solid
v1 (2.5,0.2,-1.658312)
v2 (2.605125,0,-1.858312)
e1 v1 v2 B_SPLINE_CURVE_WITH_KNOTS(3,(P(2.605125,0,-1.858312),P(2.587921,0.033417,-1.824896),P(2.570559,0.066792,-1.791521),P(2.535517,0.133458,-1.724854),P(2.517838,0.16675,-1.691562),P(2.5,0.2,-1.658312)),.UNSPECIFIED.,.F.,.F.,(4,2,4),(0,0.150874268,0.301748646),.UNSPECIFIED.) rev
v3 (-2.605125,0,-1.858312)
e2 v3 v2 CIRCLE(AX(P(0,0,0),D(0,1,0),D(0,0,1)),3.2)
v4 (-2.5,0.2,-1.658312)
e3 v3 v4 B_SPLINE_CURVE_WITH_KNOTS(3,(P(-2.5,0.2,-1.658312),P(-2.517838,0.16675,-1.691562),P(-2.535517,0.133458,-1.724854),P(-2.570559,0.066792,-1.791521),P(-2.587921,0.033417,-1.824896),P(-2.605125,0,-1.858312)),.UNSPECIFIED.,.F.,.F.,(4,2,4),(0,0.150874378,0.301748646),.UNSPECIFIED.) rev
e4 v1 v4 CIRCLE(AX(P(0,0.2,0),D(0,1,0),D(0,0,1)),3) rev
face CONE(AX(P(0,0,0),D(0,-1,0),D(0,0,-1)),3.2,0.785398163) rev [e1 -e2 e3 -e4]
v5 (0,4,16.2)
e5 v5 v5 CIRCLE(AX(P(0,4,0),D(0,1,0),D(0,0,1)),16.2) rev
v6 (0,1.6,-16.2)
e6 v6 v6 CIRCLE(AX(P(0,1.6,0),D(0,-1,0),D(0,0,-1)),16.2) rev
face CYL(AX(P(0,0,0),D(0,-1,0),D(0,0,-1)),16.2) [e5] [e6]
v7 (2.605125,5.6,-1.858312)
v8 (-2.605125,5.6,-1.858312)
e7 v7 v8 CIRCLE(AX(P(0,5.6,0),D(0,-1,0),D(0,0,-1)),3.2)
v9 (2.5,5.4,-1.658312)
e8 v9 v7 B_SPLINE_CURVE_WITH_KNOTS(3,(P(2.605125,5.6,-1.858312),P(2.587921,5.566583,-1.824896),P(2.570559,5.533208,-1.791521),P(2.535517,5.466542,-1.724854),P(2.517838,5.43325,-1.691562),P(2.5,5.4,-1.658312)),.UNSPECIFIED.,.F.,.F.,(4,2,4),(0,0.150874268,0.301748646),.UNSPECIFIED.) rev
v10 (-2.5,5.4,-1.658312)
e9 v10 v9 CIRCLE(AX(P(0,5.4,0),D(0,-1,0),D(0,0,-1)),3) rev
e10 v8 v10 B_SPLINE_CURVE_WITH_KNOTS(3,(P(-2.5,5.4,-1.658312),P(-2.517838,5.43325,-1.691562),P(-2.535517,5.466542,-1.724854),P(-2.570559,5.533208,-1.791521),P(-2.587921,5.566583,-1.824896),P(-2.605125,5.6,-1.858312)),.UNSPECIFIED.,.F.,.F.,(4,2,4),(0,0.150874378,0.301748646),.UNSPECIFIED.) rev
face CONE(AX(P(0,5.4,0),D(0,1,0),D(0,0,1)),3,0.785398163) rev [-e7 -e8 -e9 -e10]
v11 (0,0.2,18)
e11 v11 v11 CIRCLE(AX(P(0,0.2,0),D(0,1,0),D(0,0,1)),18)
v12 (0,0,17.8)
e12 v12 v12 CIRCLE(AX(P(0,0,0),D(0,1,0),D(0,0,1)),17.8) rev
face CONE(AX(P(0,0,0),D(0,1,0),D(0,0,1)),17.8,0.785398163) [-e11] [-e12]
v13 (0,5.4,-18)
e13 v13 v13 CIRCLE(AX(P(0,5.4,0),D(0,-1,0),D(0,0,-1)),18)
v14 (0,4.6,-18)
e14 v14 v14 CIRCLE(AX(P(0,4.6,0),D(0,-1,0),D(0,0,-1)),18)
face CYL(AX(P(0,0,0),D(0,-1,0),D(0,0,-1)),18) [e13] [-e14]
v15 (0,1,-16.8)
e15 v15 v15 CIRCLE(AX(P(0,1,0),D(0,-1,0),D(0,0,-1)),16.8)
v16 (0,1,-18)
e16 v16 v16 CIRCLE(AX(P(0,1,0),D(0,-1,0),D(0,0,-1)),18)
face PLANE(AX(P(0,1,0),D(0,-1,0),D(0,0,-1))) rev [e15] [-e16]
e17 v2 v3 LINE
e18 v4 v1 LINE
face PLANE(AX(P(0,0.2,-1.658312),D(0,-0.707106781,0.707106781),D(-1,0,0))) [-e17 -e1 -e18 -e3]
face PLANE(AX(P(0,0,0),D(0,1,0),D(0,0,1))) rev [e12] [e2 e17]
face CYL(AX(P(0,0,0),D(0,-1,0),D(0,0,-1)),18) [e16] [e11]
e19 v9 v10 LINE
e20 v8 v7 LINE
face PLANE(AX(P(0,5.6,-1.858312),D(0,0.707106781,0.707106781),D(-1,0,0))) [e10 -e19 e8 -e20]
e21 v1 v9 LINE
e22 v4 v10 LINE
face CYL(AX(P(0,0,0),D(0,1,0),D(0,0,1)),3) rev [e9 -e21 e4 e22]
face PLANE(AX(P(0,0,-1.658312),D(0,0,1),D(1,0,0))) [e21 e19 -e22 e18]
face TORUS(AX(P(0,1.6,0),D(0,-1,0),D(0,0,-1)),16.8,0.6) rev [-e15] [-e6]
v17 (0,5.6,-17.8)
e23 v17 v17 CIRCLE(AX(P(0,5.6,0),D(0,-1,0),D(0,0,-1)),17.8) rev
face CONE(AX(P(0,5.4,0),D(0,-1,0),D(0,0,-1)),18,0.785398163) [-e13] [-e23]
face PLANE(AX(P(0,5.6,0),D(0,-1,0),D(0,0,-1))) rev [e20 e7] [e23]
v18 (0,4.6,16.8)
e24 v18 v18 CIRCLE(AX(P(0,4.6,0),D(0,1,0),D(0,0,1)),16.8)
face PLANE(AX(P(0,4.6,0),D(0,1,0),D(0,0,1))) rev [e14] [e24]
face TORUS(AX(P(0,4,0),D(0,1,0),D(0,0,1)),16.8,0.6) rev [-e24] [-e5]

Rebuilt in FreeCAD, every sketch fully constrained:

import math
import FreeCAD as App
import Part
import Sketcher

V = App.Vector
Q = App.Units.Quantity


def edges_at(feature, points):
    """Names of the edges that pass closest to the given points."""
    edges = feature.Shape.Edges
    near = lambda p: min(range(len(edges)), key=lambda i: edges[i].distToShape(Part.Vertex(*p))[0])
    return sorted({f"Edge{near(p) + 1}" for p in points})

doc = App.newDocument("Part")
params = doc.addObject("Spreadsheet::Sheet", "Params")
for row, (alias, value) in enumerate([
    ("sketch1_width", "1 mm"),
    ("sketch1_height", "18 mm"),
    ("sketch1_width2", "5.6 mm"),
    ("sketch1_height2", "1.8 mm"),
    ("revolution_angle", "360 deg"),
    ("sketch2_radius", "3 mm"),
    ("sketch2_width", "5 mm"),
    ("fillet_radius", "0.6 mm"),
    ("chamfer_size", "0.2 mm"),
    ("chamfer2_size", "0.2 mm"),
], start=1):
    params.set(f"A{row}", alias)
    params.set(f"B{row}", "=" + value)
    params.setAlias(f"B{row}", alias)

body = doc.addObject("PartDesign::Body", "Body")

# Sketch on YZ plane
sketch1 = body.newObject("Sketcher::SketchObject", "Sketch")
sketch1.AttachmentSupport = (doc.getObject("YZ_Plane"), [""])
sketch1.MapMode = "FlatFace"
sketch1.addGeometry([
    Part.LineSegment(V(1, 16.2, 0), V(1, 18, 0)),  # 0
    Part.LineSegment(V(1, 18, 0), V(0, 18, 0)),  # 1
    Part.LineSegment(V(0, 18, 0), V(0, 0, 0)),  # 2
    Part.LineSegment(V(0, 0, 0), V(5.6, 0, 0)),  # 3
    Part.LineSegment(V(5.6, 0, 0), V(5.6, 18, 0)),  # 4
    Part.LineSegment(V(5.6, 18, 0), V(4.6, 18, 0)),  # 5
    Part.LineSegment(V(4.6, 18, 0), V(4.6, 16.2, 0)),  # 6
    Part.LineSegment(V(4.6, 16.2, 0), V(1, 16.2, 0)),  # 7
], False)
sketch1.addConstraint([
    Sketcher.Constraint("Coincident", 0, 2, 1, 1),
    Sketcher.Constraint("Coincident", 1, 2, 2, 1),
    Sketcher.Constraint("Coincident", 2, 2, 3, 1),
    Sketcher.Constraint("Coincident", 3, 2, 4, 1),
    Sketcher.Constraint("Coincident", 4, 2, 5, 1),
    Sketcher.Constraint("Coincident", 5, 2, 6, 1),
    Sketcher.Constraint("Coincident", 6, 2, 7, 1),
    Sketcher.Constraint("Coincident", 7, 2, 0, 1),
    Sketcher.Constraint("Vertical", 0),
    Sketcher.Constraint("Horizontal", 1),
    Sketcher.Constraint("Vertical", 2),
    Sketcher.Constraint("Horizontal", 3),
    Sketcher.Constraint("Vertical", 4),
    Sketcher.Constraint("Horizontal", 5),
    Sketcher.Constraint("Vertical", 6),
    Sketcher.Constraint("Horizontal", 7),
    Sketcher.Constraint("Coincident", 2, 2, -1, 1),
    Sketcher.Constraint("Horizontal", 1, 2, 4, 2),
    Sketcher.Constraint("Equal", 1, 5),
    Sketcher.Constraint("DistanceX", 1, 2, 1, 1, Q("1 mm")),
    Sketcher.Constraint("DistanceY", 2, 2, 2, 1, Q("18 mm")),
    Sketcher.Constraint("DistanceX", 3, 1, 3, 2, Q("5.6 mm")),
    Sketcher.Constraint("DistanceY", 0, 1, 0, 2, Q("1.8 mm")),
])
sketch1.setExpression("Constraints[19]", "Params.sketch1_width")
sketch1.setExpression("Constraints[20]", "Params.sketch1_height")
sketch1.setExpression("Constraints[21]", "Params.sketch1_width2")
sketch1.setExpression("Constraints[22]", "Params.sketch1_height2")
revolution = body.newObject("PartDesign::Revolution", "Revolution")
revolution.Profile = sketch1
revolution.ReferenceAxis = (sketch1, ["H_Axis"])
revolution.setExpression("Angle", "Params.revolution_angle")

# Sketch on XZ plane
sketch2 = body.newObject("Sketcher::SketchObject", "Sketch001")
sketch2.AttachmentSupport = (doc.getObject("XZ_Plane"), [""])
sketch2.MapMode = "FlatFace"
sketch2.AttachmentOffset = App.Placement(V(0, 0, -5.6), App.Rotation())
sketch2.addGeometry([
    Part.LineSegment(V(2.5, -1.7, 0), V(-2.5, -1.7, 0)),
    Part.ArcOfCircle(Part.Circle(V(0, 0, 0), V(0, 0, 1), 3), math.radians(0), math.radians(214)),
    Part.ArcOfCircle(Part.Circle(V(0, 0, 0), V(0, 0, 1), 3), math.radians(-34), math.radians(0)),
], False)
sketch2.addConstraint([
    Sketcher.Constraint("Coincident", 0, 2, 1, 2),
    Sketcher.Constraint("Tangent", 1, 1, 2, 2),
    Sketcher.Constraint("Coincident", 2, 1, 0, 1),
    Sketcher.Constraint("Horizontal", 0),
    Sketcher.Constraint("Coincident", 1, 3, -1, 1),
    Sketcher.Constraint("Equal", 1, 2),
    Sketcher.Constraint("PointOnObject", 1, 1, -1),
    Sketcher.Constraint("Radius", 1, Q("3 mm")),
    Sketcher.Constraint("DistanceX", 0, 2, 0, 1, Q("5 mm")),
])
sketch2.setExpression("Constraints[7]", "Params.sketch2_radius")
sketch2.setExpression("Constraints[8]", "Params.sketch2_width")
pocket1 = body.newObject("PartDesign::Pocket", "Pocket")
pocket1.Profile = sketch2
pocket1.Type = "ThroughAll"
pocket1.Reversed = True
doc.recompute()

fillet = body.newObject("PartDesign::Fillet", "Fillet")
fillet.Base = (pocket1, edges_at(pocket1, [(0, 1, 16.2), (0, 4.6, 16.2)]))
fillet.setExpression("Radius", "Params.fillet_radius")
doc.recompute()

chamfer = body.newObject("PartDesign::Chamfer", "Chamfer")
chamfer.Base = (fillet, edges_at(fillet, [
    (0, 5.6, -1.658),
    (-0.866, 0, 2.872),
    (0, 0, -1.658),
    (-0.866, 5.6, 2.872),
]))
chamfer.setExpression("Size", "Params.chamfer_size")
doc.recompute()

chamfer2 = body.newObject("PartDesign::Chamfer", "Chamfer001")
chamfer2.Base = (chamfer, edges_at(chamfer, [(0, 0, 18), (0, 5.6, 18)]))
chamfer2.setExpression("Size", "Params.chamfer2_size")

doc.recompute()
